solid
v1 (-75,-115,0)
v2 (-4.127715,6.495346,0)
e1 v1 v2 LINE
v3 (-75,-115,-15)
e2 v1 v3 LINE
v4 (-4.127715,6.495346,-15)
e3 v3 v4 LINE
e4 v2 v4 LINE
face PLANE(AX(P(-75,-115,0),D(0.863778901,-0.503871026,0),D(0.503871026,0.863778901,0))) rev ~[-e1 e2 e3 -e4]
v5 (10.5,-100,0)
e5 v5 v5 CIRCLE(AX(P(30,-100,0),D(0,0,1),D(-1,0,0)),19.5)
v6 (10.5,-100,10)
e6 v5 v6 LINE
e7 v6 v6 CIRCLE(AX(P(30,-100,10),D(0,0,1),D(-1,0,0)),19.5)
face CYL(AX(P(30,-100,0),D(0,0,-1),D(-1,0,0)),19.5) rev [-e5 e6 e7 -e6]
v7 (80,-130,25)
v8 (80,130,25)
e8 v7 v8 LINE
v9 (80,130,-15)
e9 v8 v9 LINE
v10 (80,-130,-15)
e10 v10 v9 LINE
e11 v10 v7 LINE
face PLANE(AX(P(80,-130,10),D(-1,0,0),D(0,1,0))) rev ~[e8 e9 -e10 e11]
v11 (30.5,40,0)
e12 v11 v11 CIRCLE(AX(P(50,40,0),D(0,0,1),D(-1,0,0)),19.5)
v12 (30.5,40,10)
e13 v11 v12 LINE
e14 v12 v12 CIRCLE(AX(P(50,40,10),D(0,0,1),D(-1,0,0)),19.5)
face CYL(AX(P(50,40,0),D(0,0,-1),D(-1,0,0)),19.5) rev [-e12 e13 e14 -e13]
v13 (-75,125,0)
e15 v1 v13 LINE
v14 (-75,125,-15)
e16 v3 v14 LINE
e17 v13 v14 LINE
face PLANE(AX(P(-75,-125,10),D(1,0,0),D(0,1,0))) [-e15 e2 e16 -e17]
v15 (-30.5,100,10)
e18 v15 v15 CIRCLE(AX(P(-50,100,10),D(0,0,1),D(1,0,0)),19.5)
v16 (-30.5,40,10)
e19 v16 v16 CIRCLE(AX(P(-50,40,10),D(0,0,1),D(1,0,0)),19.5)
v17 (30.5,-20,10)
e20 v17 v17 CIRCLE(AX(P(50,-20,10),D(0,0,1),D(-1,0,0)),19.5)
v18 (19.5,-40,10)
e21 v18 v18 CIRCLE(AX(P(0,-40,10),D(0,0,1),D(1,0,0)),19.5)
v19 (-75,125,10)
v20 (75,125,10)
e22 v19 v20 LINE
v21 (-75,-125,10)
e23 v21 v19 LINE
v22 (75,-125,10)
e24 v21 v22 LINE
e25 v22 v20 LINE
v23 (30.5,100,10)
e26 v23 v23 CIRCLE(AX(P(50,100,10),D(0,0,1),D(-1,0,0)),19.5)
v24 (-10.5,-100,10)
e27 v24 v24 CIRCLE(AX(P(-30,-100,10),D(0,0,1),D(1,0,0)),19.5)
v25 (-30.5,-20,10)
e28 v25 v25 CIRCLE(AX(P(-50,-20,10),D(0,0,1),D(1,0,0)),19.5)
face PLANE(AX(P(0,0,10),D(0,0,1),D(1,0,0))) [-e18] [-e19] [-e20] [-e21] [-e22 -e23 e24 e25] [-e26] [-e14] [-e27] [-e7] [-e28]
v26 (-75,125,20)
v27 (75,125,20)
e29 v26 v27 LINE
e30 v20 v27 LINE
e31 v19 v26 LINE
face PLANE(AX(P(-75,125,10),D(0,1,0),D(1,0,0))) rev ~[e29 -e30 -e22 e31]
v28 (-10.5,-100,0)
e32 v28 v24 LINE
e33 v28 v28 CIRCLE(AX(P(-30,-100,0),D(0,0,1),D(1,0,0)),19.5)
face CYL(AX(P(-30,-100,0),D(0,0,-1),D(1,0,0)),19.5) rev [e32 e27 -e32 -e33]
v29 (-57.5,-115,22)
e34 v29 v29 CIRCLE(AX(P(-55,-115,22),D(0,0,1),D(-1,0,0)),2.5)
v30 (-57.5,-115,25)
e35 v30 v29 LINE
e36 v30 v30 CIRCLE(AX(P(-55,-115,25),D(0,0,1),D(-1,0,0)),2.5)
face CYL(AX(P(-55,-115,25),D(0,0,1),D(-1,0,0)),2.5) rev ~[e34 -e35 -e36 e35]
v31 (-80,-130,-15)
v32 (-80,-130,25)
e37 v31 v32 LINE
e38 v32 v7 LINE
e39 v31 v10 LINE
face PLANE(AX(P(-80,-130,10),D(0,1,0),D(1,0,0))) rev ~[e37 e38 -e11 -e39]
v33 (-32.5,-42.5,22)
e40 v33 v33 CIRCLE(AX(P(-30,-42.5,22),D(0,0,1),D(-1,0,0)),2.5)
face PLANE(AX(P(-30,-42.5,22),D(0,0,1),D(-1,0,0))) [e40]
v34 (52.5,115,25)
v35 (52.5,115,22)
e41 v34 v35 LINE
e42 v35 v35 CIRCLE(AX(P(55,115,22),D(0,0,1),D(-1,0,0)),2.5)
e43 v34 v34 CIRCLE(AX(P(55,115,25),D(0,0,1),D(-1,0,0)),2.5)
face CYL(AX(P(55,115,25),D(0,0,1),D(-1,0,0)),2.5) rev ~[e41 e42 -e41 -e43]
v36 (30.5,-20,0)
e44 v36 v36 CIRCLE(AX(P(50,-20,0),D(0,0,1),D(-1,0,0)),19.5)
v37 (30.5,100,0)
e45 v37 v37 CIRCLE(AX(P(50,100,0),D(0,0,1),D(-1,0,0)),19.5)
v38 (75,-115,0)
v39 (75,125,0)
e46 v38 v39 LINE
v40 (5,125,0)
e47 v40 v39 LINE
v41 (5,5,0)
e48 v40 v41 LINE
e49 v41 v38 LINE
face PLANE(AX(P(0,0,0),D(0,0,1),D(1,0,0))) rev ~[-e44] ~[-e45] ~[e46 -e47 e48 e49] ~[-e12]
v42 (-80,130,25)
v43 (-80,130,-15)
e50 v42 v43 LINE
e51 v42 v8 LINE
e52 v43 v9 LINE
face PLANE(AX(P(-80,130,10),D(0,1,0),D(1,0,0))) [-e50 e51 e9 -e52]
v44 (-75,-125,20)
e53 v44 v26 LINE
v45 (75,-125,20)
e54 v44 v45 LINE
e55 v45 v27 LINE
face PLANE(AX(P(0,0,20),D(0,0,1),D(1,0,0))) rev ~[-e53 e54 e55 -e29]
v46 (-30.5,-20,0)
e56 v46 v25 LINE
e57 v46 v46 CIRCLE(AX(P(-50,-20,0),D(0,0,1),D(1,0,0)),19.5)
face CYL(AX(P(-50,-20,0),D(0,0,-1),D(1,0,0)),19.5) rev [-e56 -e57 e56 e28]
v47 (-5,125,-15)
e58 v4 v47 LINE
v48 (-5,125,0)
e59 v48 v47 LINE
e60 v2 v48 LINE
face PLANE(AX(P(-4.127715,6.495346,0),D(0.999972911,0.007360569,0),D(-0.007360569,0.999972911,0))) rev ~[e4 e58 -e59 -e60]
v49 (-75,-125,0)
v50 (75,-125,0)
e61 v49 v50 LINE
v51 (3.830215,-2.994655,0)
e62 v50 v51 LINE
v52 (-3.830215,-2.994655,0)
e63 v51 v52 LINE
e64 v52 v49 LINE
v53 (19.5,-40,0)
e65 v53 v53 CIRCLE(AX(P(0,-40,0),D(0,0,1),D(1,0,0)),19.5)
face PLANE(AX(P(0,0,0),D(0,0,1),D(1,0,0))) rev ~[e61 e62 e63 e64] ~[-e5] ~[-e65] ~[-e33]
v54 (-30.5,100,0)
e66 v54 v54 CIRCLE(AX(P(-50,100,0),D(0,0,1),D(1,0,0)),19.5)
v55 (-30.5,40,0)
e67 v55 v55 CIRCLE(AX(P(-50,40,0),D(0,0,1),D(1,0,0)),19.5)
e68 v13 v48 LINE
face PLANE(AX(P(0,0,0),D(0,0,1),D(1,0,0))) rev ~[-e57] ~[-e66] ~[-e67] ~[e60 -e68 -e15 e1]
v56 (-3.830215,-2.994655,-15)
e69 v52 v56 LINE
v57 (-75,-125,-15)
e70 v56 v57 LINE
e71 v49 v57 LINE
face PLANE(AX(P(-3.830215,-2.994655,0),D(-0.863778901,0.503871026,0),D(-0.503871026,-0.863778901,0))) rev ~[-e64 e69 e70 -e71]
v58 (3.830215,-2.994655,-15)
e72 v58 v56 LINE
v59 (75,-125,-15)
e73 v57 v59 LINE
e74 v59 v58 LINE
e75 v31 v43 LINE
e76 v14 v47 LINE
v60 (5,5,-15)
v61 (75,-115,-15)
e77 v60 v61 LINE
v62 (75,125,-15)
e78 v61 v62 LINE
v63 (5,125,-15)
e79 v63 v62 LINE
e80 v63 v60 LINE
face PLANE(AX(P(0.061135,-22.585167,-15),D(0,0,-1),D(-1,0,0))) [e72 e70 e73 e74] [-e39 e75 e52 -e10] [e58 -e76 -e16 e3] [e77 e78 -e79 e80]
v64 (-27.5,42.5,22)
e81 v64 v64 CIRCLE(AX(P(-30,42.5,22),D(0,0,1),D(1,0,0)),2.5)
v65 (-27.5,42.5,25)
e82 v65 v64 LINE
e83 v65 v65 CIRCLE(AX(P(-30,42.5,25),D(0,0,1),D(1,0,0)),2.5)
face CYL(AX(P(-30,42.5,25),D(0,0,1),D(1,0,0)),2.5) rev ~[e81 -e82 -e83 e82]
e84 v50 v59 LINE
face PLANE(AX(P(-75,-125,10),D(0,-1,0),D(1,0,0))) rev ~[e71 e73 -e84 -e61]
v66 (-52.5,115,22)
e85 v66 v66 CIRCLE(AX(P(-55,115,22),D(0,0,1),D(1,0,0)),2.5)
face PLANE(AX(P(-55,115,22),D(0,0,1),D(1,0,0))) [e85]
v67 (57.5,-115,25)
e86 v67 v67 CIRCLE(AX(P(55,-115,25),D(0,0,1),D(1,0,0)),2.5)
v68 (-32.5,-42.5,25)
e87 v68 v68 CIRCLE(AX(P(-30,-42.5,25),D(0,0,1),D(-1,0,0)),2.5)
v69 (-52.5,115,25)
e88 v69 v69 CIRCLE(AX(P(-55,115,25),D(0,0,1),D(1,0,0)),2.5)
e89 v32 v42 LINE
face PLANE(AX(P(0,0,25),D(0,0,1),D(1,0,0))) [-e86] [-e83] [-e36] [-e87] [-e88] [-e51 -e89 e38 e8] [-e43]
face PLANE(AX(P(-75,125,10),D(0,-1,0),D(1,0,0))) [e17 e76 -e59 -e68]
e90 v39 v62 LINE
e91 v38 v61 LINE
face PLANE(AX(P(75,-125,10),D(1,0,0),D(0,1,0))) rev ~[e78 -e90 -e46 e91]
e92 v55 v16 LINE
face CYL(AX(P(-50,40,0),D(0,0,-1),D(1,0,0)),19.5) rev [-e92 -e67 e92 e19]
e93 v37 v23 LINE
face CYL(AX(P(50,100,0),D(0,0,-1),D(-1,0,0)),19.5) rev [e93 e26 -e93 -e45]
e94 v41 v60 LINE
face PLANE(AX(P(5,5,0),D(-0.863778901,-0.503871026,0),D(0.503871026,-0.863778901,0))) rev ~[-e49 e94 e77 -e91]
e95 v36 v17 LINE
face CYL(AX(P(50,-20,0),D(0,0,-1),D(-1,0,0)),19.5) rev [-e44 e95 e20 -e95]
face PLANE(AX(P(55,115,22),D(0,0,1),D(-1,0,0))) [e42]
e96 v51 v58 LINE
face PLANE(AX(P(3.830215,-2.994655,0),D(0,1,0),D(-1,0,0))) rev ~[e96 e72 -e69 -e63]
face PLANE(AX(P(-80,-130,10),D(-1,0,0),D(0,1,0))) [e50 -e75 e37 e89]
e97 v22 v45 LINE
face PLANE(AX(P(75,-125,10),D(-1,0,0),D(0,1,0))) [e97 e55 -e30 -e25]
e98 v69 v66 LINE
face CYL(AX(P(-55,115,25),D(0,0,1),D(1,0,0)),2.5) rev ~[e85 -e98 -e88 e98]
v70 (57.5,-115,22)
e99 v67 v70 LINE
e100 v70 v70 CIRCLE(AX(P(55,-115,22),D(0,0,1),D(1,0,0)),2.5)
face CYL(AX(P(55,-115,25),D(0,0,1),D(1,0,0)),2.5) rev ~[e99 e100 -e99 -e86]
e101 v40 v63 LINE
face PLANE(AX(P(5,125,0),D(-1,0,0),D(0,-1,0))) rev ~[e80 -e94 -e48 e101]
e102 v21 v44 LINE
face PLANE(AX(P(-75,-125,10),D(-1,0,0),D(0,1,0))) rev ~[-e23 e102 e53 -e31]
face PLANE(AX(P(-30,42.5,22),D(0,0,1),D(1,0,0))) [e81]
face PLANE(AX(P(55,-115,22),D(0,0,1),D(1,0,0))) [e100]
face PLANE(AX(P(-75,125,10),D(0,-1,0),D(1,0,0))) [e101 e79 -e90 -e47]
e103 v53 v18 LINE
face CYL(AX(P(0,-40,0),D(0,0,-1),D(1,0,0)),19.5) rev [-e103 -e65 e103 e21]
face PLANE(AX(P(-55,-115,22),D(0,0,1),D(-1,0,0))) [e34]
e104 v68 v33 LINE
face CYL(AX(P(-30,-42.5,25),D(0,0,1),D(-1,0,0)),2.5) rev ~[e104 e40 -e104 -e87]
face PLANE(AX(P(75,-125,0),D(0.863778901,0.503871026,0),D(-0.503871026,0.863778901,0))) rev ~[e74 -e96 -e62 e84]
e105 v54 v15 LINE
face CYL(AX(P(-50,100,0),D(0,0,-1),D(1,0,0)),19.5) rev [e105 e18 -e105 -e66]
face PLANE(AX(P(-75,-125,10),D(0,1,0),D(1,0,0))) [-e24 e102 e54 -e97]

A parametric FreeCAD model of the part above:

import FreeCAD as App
import Part
import Sketcher

V = App.Vector

doc = App.newDocument("Part")
body = doc.addObject("PartDesign::Body", "Body")

# Sketch on XY plane
sketch1 = body.newObject("Sketcher::SketchObject", "Sketch")
sketch1.AttachmentSupport = (doc.getObject("XY_Plane"), [""])
sketch1.MapMode = "FlatFace"
sketch1.addGeometry(Part.LineSegment(V(-75, 125, 0), V(-75, -125, 0)), False)
sketch1.addGeometry(Part.LineSegment(V(-75, -125, 0), V(75, -125, 0)), False)
sketch1.addGeometry(Part.LineSegment(V(75, -125, 0), V(75, 125, 0)), False)
sketch1.addGeometry(Part.LineSegment(V(75, 125, 0), V(-75, 125, 0)), False)
sketch1.addGeometry(Part.Circle(V(-30, -100, 0), V(0, 0, 1), 20), False)
sketch1.addGeometry(Part.Circle(V(-50, -20, 0), V(0, 0, 1), 20), False)
sketch1.addGeometry(Part.Circle(V(30, -100, 0), V(0, 0, 1), 20), False)
sketch1.addGeometry(Part.Circle(V(0, -40, 0), V(0, 0, 1), 20), False)
sketch1.addGeometry(Part.Circle(V(50, -20, 0), V(0, 0, 1), 20), False)
sketch1.addGeometry(Part.Circle(V(-50, 40, 0), V(0, 0, 1), 20), False)
sketch1.addGeometry(Part.Circle(V(-50, 100, 0), V(0, 0, 1), 20), False)
sketch1.addGeometry(Part.Circle(V(50, 40, 0), V(0, 0, 1), 20), False)
sketch1.addGeometry(Part.Circle(V(50, 100, 0), V(0, 0, 1), 20), False)
sketch1.addConstraint(Sketcher.Constraint("Coincident", 0, 2, 1, 1))
sketch1.addConstraint(Sketcher.Constraint("Coincident", 1, 2, 2, 1))
sketch1.addConstraint(Sketcher.Constraint("Coincident", 2, 2, 3, 1))
sketch1.addConstraint(Sketcher.Constraint("Coincident", 3, 2, 0, 1))
sketch1.addConstraint(Sketcher.Constraint("Vertical", 0))
sketch1.addConstraint(Sketcher.Constraint("Horizontal", 1))
sketch1.addConstraint(Sketcher.Constraint("Vertical", 2))
sketch1.addConstraint(Sketcher.Constraint("Horizontal", 3))
sketch1.addConstraint(Sketcher.Constraint("Equal", 4, 5))
sketch1.addConstraint(Sketcher.Constraint("Equal", 5, 6))
sketch1.addConstraint(Sketcher.Constraint("Equal", 6, 7))
sketch1.addConstraint(Sketcher.Constraint("Equal", 7, 8))
sketch1.addConstraint(Sketcher.Constraint("Equal", 8, 9))
sketch1.addConstraint(Sketcher.Constraint("Equal", 9, 10))
sketch1.addConstraint(Sketcher.Constraint("Equal", 10, 11))
sketch1.addConstraint(Sketcher.Constraint("Equal", 11, 12))
sketch1.addConstraint(Sketcher.Constraint("Symmetric", 0, 2, 2, 2, -1, 1))
sketch1.addConstraint(Sketcher.Constraint("Symmetric", 4, 3, 6, 3, -2))
sketch1.addConstraint(Sketcher.Constraint("Symmetric", 5, 3, 8, 3, -2))
sketch1.addConstraint(Sketcher.Constraint("Symmetric", 9, 3, 11, 3, -2))
sketch1.addConstraint(Sketcher.Constraint("Symmetric", 10, 3, 12, 3, -2))
sketch1.addConstraint(Sketcher.Constraint("PointOnObject", 7, 3, -2))
sketch1.addConstraint(Sketcher.Constraint("Vertical", 5, 3, 9, 3))
sketch1.addConstraint(Sketcher.Constraint("Vertical", 9, 3, 10, 3))
sketch1.addConstraint(Sketcher.Constraint("Diameter", 4, 39.0))
sketch1.addConstraint(Sketcher.Constraint("DistanceX", 1, 1, 1, 2, 150.0))
sketch1.addConstraint(Sketcher.Constraint("DistanceY", 0, 2, 0, 1, 250.0))
sketch1.addConstraint(Sketcher.Constraint("DistanceX", 4, 3, -1, 1, 30.0))
sketch1.addConstraint(Sketcher.Constraint("DistanceY", 4, 3, -1, 1, 100.0))
sketch1.addConstraint(Sketcher.Constraint("DistanceX", 5, 3, -1, 1, 50.0))
sketch1.addConstraint(Sketcher.Constraint("DistanceY", 5, 3, -1, 1, 20.0))
sketch1.addConstraint(Sketcher.Constraint("DistanceY", 7, 3, -1, 1, 40.0))
sketch1.addConstraint(Sketcher.Constraint("DistanceY", -1, 1, 9, 3, 40.0))
sketch1.addConstraint(Sketcher.Constraint("DistanceY", -1, 1, 10, 3, 100.0))
pad1 = body.newObject("PartDesign::Pad", "Pad")
pad1.Profile = sketch1
pad1.Length = 10

# Sketch on XY plane
sketch2 = body.newObject("Sketcher::SketchObject", "Sketch001")
sketch2.AttachmentSupport = (doc.getObject("XY_Plane"), [""])
sketch2.MapMode = "FlatFace"
sketch2.AttachmentOffset = App.Placement(V(0, 0, 10), App.Rotation())
sketch2.addGeometry(Part.LineSegment(V(-80, 130, 0), V(-80, -130, 0)), False)
sketch2.addGeometry(Part.LineSegment(V(-80, -130, 0), V(80, -130, 0)), False)
sketch2.addGeometry(Part.LineSegment(V(80, -130, 0), V(80, 130, 0)), False)
sketch2.addGeometry(Part.LineSegment(V(80, 130, 0), V(-80, 130, 0)), False)
sketch2.addGeometry(Part.LineSegment(V(75, -125, 0), V(-75, -125, 0)), False)
sketch2.addGeometry(Part.LineSegment(V(-75, -125, 0), V(-75, 125, 0)), False)
sketch2.addGeometry(Part.LineSegment(V(-75, 125, 0), V(75, 125, 0)), False)
sketch2.addGeometry(Part.LineSegment(V(75, 125, 0), V(75, -125, 0)), False)
sketch2.addConstraint(Sketcher.Constraint("Coincident", 0, 2, 1, 1))
sketch2.addConstraint(Sketcher.Constraint("Coincident", 1, 2, 2, 1))
sketch2.addConstraint(Sketcher.Constraint("Coincident", 2, 2, 3, 1))
sketch2.addConstraint(Sketcher.Constraint("Coincident", 3, 2, 0, 1))
sketch2.addConstraint(Sketcher.Constraint("Coincident", 4, 2, 5, 1))
sketch2.addConstraint(Sketcher.Constraint("Coincident", 5, 2, 6, 1))
sketch2.addConstraint(Sketcher.Constraint("Coincident", 6, 2, 7, 1))
sketch2.addConstraint(Sketcher.Constraint("Coincident", 7, 2, 4, 1))
sketch2.addConstraint(Sketcher.Constraint("Vertical", 0))
sketch2.addConstraint(Sketcher.Constraint("Horizontal", 1))
sketch2.addConstraint(Sketcher.Constraint("Vertical", 2))
sketch2.addConstraint(Sketcher.Constraint("Horizontal", 3))
sketch2.addConstraint(Sketcher.Constraint("Horizontal", 4))
sketch2.addConstraint(Sketcher.Constraint("Vertical", 5))
sketch2.addConstraint(Sketcher.Constraint("Horizontal", 6))
sketch2.addConstraint(Sketcher.Constraint("Vertical", 7))
sketch2.addConstraint(Sketcher.Constraint("Symmetric", 0, 2, 2, 2, -1, 1))
sketch2.addConstraint(Sketcher.Constraint("Symmetric", 4, 2, 6, 2, -1, 1))
sketch2.addConstraint(Sketcher.Constraint("DistanceX", 1, 1, 1, 2, 160.0))
sketch2.addConstraint(Sketcher.Constraint("DistanceX", 4, 2, 4, 1, 150.0))
sketch2.addConstraint(Sketcher.Constraint("DistanceY", 0, 2, 0, 1, 260.0))
sketch2.addConstraint(Sketcher.Constraint("DistanceY", 5, 1, 5, 2, 250.0))
pad2 = body.newObject("PartDesign::Pad", "Pad001")
pad2.Profile = sketch2
pad2.Length = 25
pad2.Reversed = True

# Sketch on XY plane
sketch3 = body.newObject("Sketcher::SketchObject", "Sketch002")
sketch3.AttachmentSupport = (doc.getObject("XY_Plane"), [""])
sketch3.MapMode = "FlatFace"
sketch3.addGeometry(Part.LineSegment(V(5, 125, 0), V(5, 5, 0)), False)
sketch3.addGeometry(Part.LineSegment(V(5, 5, 0), V(75, -115, 0)), False)
sketch3.addGeometry(Part.LineSegment(V(75, -115, 0), V(75, -125, 0)), False)
sketch3.addGeometry(Part.LineSegment(V(75, -125, 0), V(4, -3, 0)), False)
sketch3.addGeometry(Part.LineSegment(V(4, -3, 0), V(-4, -3, 0)), False)
sketch3.addGeometry(Part.LineSegment(V(-4, -3, 0), V(-75, -125, 0)), False)
sketch3.addGeometry(Part.LineSegment(V(-75, -125, 0), V(-75, -115, 0)), False)
sketch3.addGeometry(Part.LineSegment(V(-75, -115, 0), V(-4, 6, 0)), False)
sketch3.addGeometry(Part.LineSegment(V(-4, 6, 0), V(-5, 125, 0)), False)
sketch3.addGeometry(Part.LineSegment(V(-5, 125, 0), V(5, 125, 0)), False)
sketch3.addConstraint(Sketcher.Constraint("Coincident", 0, 2, 1, 1))
sketch3.addConstraint(Sketcher.Constraint("Coincident", 1, 2, 2, 1))
sketch3.addConstraint(Sketcher.Constraint("Coincident", 2, 2, 3, 1))
sketch3.addConstraint(Sketcher.Constraint("Coincident", 3, 2, 4, 1))
sketch3.addConstraint(Sketcher.Constraint("Coincident", 4, 2, 5, 1))
sketch3.addConstraint(Sketcher.Constraint("Coincident", 5, 2, 6, 1))
sketch3.addConstraint(Sketcher.Constraint("Coincident", 6, 2, 7, 1))
sketch3.addConstraint(Sketcher.Constraint("Coincident", 7, 2, 8, 1))
sketch3.addConstraint(Sketcher.Constraint("Coincident", 8, 2, 9, 1))
sketch3.addConstraint(Sketcher.Constraint("Coincident", 9, 2, 0, 1))
sketch3.addConstraint(Sketcher.Constraint("Vertical", 0))
sketch3.addConstraint(Sketcher.Constraint("Vertical", 2))
sketch3.addConstraint(Sketcher.Constraint("Horizontal", 4))
sketch3.addConstraint(Sketcher.Constraint("Vertical", 6))
sketch3.addConstraint(Sketcher.Constraint("Horizontal", 9))
sketch3.addConstraint(Sketcher.Constraint("Symmetric", 2, 2, 5, 2, -2))
sketch3.addConstraint(Sketcher.Constraint("Parallel", 1, 3))
sketch3.addConstraint(Sketcher.Constraint("Parallel", 5, 7))
sketch3.addConstraint(Sketcher.Constraint("Horizontal", 1, 2, 6, 2))
sketch3.addConstraint(Sketcher.Constraint("Equal", 9, 2))
sketch3.addConstraint(Sketcher.Constraint("Equal", 3, 5))
sketch3.addConstraint(Sketcher.Constraint("DistanceX", 9, 1, 9, 2, 10.0))
sketch3.addConstraint(Sketcher.Constraint("DistanceY", 0, 2, 0, 1, 120.0))
sketch3.addConstraint(Sketcher.Constraint("DistanceX", -1, 1, 0, 2, 5.0))
sketch3.addConstraint(Sketcher.Constraint("DistanceY", -1, 1, 0, 2, 5.0))
sketch3.addConstraint(Sketcher.Constraint("DistanceX", -1, 1, 1, 2, 75.0))
sketch3.addConstraint(Sketcher.Constraint("DistanceY", 1, 2, -1, 1, 115.0))
sketch3.addConstraint(Sketcher.Constraint("DistanceY", 4, 2, 7, 2, 9.490001))
sketch3.addConstraint(Sketcher.Constraint("DistanceX", 4, 2, 4, 1, 7.66043))
pad3 = body.newObject("PartDesign::Pad", "Pad002")
pad3.Profile = sketch3
pad3.Length = 15
pad3.Reversed = True

# Sketch on XY plane
sketch4 = body.newObject("Sketcher::SketchObject", "Sketch003")
sketch4.AttachmentSupport = (doc.getObject("XY_Plane"), [""])
sketch4.MapMode = "FlatFace"
sketch4.AttachmentOffset = App.Placement(V(0, 0, 10), App.Rotation())
sketch4.addGeometry(Part.LineSegment(V(-80, 130, 0), V(-80, -130, 0)), False)
sketch4.addGeometry(Part.LineSegment(V(-80, -130, 0), V(80, -130, 0)), False)
sketch4.addGeometry(Part.LineSegment(V(80, -130, 0), V(80, 130, 0)), False)
sketch4.addGeometry(Part.LineSegment(V(80, 130, 0), V(-80, 130, 0)), False)
sketch4.addGeometry(Part.LineSegment(V(75, -125, 0), V(-75, -125, 0)), False)
sketch4.addGeometry(Part.LineSegment(V(-75, -125, 0), V(-75, 125, 0)), False)
sketch4.addGeometry(Part.LineSegment(V(-75, 125, 0), V(75, 125, 0)), False)
sketch4.addGeometry(Part.LineSegment(V(75, 125, 0), V(75, -125, 0)), False)
sketch4.addConstraint(Sketcher.Constraint("Coincident", 0, 2, 1, 1))
sketch4.addConstraint(Sketcher.Constraint("Coincident", 1, 2, 2, 1))
sketch4.addConstraint(Sketcher.Constraint("Coincident", 2, 2, 3, 1))
sketch4.addConstraint(Sketcher.Constraint("Coincident", 3, 2, 0, 1))
sketch4.addConstraint(Sketcher.Constraint("Coincident", 4, 2, 5, 1))
sketch4.addConstraint(Sketcher.Constraint("Coincident", 5, 2, 6, 1))
sketch4.addConstraint(Sketcher.Constraint("Coincident", 6, 2, 7, 1))
sketch4.addConstraint(Sketcher.Constraint("Coincident", 7, 2, 4, 1))
sketch4.addConstraint(Sketcher.Constraint("Vertical", 0))
sketch4.addConstraint(Sketcher.Constraint("Horizontal", 1))
sketch4.addConstraint(Sketcher.Constraint("Vertical", 2))
sketch4.addConstraint(Sketcher.Constraint("Horizontal", 3))
sketch4.addConstraint(Sketcher.Constraint("Horizontal", 4))
sketch4.addConstraint(Sketcher.Constraint("Vertical", 5))
sketch4.addConstraint(Sketcher.Constraint("Horizontal", 6))
sketch4.addConstraint(Sketcher.Constraint("Vertical", 7))
sketch4.addConstraint(Sketcher.Constraint("Symmetric", 0, 2, 2, 2, -1, 1))
sketch4.addConstraint(Sketcher.Constraint("Symmetric", 4, 2, 6, 2, -1, 1))
sketch4.addConstraint(Sketcher.Constraint("DistanceX", 1, 1, 1, 2, 160.0))
sketch4.addConstraint(Sketcher.Constraint("DistanceX", 4, 2, 4, 1, 150.0))
sketch4.addConstraint(Sketcher.Constraint("DistanceY", 0, 2, 0, 1, 260.0))
sketch4.addConstraint(Sketcher.Constraint("DistanceY", 5, 1, 5, 2, 250.0))
pad4 = body.newObject("PartDesign::Pad", "Pad003")
pad4.Profile = sketch4
pad4.Length = 15

# Sketch on XY plane
sketch5 = body.newObject("Sketcher::SketchObject", "Sketch004")
sketch5.AttachmentSupport = (doc.getObject("XY_Plane"), [""])
sketch5.MapMode = "FlatFace"
sketch5.AttachmentOffset = App.Placement(V(0, 0, 25), App.Rotation())
sketch5.addGeometry(Part.LineSegment(V(-80, 130, 0), V(-80, -130, 0)), False)
sketch5.addGeometry(Part.LineSegment(V(-80, -130, 0), V(80, -130, 0)), False)
sketch5.addGeometry(Part.LineSegment(V(80, -130, 0), V(80, 130, 0)), False)
sketch5.addGeometry(Part.LineSegment(V(80, 130, 0), V(-80, 130, 0)), False)
sketch5.addConstraint(Sketcher.Constraint("Coincident", 0, 2, 1, 1))
sketch5.addConstraint(Sketcher.Constraint("Coincident", 1, 2, 2, 1))
sketch5.addConstraint(Sketcher.Constraint("Coincident", 2, 2, 3, 1))
sketch5.addConstraint(Sketcher.Constraint("Coincident", 3, 2, 0, 1))
sketch5.addConstraint(Sketcher.Constraint("Vertical", 0))
sketch5.addConstraint(Sketcher.Constraint("Horizontal", 1))
sketch5.addConstraint(Sketcher.Constraint("Vertical", 2))
sketch5.addConstraint(Sketcher.Constraint("Horizontal", 3))
sketch5.addConstraint(Sketcher.Constraint("Symmetric", 0, 2, 2, 2, -1, 1))
sketch5.addConstraint(Sketcher.Constraint("DistanceX", 1, 1, 1, 2, 160.0))
sketch5.addConstraint(Sketcher.Constraint("DistanceY", 0, 2, 0, 1, 260.0))
pad5 = body.newObject("PartDesign::Pad", "Pad004")
pad5.Profile = sketch5
pad5.Length = 5
pad5.Reversed = True

# Sketch on XY plane
sketch6 = body.newObject("Sketcher::SketchObject", "Sketch005")
sketch6.AttachmentSupport = (doc.getObject("XY_Plane"), [""])
sketch6.MapMode = "FlatFace"
sketch6.AttachmentOffset = App.Placement(V(0, 0, 25), App.Rotation())
sketch6.addGeometry(Part.Circle(V(-30, 42.5, 0), V(0, 0, 1), 2.5), False)
sketch6.addGeometry(Part.Circle(V(-30, -42.5, 0), V(0, 0, 1), 2.5), False)
sketch6.addConstraint(Sketcher.Constraint("Equal", 0, 1))
sketch6.addConstraint(Sketcher.Constraint("Symmetric", 0, 3, 1, 3, -1))
sketch6.addConstraint(Sketcher.Constraint("Diameter", 0, 5.0))
sketch6.addConstraint(Sketcher.Constraint("DistanceX", 0, 3, -1, 1, 30.0))
sketch6.addConstraint(Sketcher.Constraint("DistanceY", 1, 3, 0, 3, 85.0))
pocket1 = body.newObject("PartDesign::Pocket", "Pocket")
pocket1.Profile = sketch6
pocket1.Length = 3

# Sketch on XY plane
sketch7 = body.newObject("Sketcher::SketchObject", "Sketch006")
sketch7.AttachmentSupport = (doc.getObject("XY_Plane"), [""])
sketch7.MapMode = "FlatFace"
sketch7.AttachmentOffset = App.Placement(V(0, 0, 25), App.Rotation())
sketch7.addGeometry(Part.Circle(V(-55, 115, 0), V(0, 0, 1), 2.5), False)
sketch7.addGeometry(Part.Circle(V(55, 115, 0), V(0, 0, 1), 2.5), False)
sketch7.addGeometry(Part.Circle(V(55, -115, 0), V(0, 0, 1), 2.5), False)
sketch7.addGeometry(Part.Circle(V(-55, -115, 0), V(0, 0, 1), 2.5), False)
sketch7.addConstraint(Sketcher.Constraint("Equal", 0, 1))
sketch7.addConstraint(Sketcher.Constraint("Equal", 1, 2))
sketch7.addConstraint(Sketcher.Constraint("Equal", 2, 3))
sketch7.addConstraint(Sketcher.Constraint("Symmetric", 0, 3, 2, 3, -1, 1))
sketch7.addConstraint(Sketcher.Constraint("Symmetric", 1, 3, 3, 3, -1, 1))
sketch7.addConstraint(Sketcher.Constraint("Symmetric", 0, 3, 1, 3, -2))
sketch7.addConstraint(Sketcher.Constraint("Diameter", 0, 5.0))
sketch7.addConstraint(Sketcher.Constraint("DistanceX", 0, 3, -1, 1, 55.0))
sketch7.addConstraint(Sketcher.Constraint("DistanceY", -1, 1, 0, 3, 115.0))
pocket2 = body.newObject("PartDesign::Pocket", "Pocket001")
pocket2.Profile = sketch7
pocket2.Length = 3

doc.recompute()
